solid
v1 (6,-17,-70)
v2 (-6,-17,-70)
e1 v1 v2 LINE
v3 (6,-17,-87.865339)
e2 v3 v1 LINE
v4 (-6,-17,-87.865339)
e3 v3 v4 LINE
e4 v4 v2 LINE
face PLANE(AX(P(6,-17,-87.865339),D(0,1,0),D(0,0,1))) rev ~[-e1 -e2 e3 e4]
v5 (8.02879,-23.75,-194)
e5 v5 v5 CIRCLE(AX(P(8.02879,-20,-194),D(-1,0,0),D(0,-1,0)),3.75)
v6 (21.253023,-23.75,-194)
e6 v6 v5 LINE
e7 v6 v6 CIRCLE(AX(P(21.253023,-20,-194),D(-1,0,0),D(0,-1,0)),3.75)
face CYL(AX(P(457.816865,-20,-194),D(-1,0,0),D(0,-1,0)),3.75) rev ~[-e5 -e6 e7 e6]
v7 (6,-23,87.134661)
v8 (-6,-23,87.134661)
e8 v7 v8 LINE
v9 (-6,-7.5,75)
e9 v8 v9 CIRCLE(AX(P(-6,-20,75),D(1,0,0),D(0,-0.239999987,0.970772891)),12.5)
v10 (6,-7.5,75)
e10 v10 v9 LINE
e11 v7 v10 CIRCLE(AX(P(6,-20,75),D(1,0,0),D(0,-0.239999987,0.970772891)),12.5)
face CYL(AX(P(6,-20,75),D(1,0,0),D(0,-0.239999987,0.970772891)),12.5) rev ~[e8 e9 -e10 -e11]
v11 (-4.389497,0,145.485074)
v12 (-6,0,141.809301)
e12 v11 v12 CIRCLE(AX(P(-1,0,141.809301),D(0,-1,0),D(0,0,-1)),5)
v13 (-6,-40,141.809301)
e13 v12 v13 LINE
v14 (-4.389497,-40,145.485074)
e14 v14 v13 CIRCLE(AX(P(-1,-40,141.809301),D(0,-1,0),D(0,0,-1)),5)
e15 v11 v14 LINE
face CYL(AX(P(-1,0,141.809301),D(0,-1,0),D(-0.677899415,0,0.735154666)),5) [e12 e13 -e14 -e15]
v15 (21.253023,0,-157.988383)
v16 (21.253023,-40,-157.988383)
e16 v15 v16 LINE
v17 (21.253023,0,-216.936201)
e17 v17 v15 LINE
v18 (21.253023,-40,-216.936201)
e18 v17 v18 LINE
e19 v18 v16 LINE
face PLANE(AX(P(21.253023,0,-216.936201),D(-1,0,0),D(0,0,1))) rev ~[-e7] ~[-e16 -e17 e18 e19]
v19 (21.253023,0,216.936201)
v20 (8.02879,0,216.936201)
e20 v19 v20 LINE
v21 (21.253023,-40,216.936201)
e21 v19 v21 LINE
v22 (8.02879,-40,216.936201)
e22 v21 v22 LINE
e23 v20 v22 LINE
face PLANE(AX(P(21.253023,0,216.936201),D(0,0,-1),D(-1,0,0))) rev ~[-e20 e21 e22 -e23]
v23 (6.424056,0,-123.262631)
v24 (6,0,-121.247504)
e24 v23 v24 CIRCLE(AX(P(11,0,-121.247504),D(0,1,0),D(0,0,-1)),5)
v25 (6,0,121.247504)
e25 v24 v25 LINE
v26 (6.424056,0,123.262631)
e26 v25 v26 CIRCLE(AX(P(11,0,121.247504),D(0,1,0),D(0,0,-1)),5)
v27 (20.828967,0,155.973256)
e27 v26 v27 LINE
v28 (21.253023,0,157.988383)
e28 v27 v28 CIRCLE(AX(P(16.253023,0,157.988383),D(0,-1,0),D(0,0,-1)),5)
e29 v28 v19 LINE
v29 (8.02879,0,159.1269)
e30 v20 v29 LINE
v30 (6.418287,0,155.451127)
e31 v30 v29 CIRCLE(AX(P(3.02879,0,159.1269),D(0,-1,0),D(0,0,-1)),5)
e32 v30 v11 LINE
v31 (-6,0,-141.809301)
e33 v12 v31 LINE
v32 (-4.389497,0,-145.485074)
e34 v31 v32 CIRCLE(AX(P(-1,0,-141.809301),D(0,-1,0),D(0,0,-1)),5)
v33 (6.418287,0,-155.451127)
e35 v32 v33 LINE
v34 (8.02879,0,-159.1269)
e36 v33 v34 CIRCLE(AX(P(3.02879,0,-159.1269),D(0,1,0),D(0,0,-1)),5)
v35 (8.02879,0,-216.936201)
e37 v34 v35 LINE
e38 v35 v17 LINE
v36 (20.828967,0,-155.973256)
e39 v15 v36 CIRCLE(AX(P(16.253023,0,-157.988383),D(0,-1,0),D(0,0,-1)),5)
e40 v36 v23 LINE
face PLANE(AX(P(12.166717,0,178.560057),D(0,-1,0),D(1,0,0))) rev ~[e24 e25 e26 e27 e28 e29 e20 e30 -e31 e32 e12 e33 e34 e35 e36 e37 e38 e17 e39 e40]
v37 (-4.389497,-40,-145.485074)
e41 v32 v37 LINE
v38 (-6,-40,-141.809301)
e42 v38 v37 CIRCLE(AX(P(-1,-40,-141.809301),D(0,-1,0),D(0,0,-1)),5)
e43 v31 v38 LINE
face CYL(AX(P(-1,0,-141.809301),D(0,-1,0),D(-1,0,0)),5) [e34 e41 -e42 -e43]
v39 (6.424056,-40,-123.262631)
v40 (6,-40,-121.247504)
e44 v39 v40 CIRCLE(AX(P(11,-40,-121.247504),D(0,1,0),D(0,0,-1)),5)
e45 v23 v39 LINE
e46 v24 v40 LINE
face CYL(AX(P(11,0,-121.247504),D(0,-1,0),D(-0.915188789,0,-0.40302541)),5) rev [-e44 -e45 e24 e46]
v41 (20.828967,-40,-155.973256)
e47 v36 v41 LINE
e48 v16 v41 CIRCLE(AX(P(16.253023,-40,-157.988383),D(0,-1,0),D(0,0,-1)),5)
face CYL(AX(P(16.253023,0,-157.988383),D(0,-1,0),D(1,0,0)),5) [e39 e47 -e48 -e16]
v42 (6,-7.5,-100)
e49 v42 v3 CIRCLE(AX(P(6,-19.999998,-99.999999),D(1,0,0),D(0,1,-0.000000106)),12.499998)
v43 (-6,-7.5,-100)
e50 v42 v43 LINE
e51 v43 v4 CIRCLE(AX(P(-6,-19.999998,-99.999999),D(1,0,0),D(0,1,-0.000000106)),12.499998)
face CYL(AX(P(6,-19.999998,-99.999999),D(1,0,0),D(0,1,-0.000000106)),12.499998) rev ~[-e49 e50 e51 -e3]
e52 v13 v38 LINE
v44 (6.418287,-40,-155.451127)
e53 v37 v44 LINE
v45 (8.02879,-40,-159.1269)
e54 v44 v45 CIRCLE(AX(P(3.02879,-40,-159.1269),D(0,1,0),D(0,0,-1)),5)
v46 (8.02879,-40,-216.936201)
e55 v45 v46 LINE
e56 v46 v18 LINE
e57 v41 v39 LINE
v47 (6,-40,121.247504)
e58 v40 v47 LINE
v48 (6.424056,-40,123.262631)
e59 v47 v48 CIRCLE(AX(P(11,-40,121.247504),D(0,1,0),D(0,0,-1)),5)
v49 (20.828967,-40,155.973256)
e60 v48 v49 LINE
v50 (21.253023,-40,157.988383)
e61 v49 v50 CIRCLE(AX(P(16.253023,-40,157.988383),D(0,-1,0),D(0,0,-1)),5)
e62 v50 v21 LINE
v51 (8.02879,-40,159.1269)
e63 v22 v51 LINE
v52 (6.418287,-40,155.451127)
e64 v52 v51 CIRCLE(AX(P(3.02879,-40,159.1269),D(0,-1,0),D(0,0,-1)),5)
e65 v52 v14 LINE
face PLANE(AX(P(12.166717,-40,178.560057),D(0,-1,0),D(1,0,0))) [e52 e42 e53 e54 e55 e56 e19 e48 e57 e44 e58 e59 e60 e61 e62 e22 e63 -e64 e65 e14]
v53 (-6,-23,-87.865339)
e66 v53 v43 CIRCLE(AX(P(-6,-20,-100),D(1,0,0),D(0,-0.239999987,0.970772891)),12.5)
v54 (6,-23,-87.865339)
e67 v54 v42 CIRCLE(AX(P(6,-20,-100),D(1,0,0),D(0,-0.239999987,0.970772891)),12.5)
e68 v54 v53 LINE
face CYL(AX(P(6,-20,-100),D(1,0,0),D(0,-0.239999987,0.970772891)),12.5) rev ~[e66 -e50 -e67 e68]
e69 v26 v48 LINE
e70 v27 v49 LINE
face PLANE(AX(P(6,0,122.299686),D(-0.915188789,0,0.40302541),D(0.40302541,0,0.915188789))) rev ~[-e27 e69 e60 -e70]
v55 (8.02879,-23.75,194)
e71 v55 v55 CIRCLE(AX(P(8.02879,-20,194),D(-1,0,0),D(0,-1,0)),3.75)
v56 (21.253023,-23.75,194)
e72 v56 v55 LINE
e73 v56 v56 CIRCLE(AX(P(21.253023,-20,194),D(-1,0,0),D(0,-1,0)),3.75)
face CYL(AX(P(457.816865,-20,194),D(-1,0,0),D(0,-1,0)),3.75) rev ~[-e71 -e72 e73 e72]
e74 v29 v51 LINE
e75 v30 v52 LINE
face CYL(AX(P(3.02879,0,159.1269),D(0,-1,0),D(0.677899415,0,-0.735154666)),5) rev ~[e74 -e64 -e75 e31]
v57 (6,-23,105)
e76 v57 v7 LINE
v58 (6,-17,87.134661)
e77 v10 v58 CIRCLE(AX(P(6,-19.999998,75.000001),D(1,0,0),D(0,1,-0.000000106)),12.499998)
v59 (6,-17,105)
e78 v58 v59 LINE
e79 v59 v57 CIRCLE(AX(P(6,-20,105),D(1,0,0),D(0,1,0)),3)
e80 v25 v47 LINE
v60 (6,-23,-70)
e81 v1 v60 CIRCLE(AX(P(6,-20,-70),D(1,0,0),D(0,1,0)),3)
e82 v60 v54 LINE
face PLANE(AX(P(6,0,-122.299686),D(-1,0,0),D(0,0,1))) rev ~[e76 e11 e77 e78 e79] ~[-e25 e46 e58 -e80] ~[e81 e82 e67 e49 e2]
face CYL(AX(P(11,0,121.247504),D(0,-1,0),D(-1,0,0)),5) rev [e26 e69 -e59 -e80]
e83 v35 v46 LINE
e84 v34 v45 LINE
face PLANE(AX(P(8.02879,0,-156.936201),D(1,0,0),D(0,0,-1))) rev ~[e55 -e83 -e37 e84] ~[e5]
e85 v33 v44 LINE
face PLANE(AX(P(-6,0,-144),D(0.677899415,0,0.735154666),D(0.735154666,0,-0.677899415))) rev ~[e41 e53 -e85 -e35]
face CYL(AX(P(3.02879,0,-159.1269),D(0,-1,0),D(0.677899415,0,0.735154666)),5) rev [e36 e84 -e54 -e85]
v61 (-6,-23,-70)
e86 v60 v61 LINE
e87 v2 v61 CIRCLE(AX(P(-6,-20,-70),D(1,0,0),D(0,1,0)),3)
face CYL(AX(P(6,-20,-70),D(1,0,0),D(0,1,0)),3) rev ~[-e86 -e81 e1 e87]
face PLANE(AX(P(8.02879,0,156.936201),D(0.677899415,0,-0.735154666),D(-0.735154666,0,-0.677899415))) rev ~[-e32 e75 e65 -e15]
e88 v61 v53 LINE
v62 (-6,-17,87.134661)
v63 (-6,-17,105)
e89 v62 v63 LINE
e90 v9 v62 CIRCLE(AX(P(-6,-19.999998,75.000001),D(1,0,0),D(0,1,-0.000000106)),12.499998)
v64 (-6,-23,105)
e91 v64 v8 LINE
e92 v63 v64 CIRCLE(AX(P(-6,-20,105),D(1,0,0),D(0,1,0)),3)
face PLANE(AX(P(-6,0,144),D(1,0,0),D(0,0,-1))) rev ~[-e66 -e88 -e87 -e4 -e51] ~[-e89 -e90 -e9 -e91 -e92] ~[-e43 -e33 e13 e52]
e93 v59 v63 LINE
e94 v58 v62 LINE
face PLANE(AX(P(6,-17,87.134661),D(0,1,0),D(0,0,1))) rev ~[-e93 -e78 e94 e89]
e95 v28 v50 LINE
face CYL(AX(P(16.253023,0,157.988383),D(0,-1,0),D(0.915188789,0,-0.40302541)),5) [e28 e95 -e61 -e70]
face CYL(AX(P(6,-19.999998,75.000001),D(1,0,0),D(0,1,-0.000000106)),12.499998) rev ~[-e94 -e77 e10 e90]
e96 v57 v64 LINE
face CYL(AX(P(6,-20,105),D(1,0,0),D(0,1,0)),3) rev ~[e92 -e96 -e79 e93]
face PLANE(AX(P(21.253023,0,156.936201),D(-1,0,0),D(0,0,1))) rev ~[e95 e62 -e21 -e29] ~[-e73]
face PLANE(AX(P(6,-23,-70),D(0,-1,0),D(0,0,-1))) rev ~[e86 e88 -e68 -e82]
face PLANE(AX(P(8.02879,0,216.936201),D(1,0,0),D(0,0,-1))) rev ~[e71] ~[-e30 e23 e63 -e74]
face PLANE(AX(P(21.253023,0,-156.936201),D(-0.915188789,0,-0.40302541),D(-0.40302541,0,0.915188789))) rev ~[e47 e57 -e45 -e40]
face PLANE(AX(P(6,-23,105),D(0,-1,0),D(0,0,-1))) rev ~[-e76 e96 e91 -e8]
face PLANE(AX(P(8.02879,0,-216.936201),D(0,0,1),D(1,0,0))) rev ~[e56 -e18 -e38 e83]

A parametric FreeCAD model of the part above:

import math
import FreeCAD as App
import Part
import Sketcher
Q = App.Units.Quantity


def edges_at(feature, points):
    """Names of the edges that pass closest to the given points."""
    edges = feature.Shape.Edges
    near = lambda p: min(range(len(edges)), key=lambda i: edges[i].distToShape(Part.Vertex(*p))[0])
    return sorted({f"Edge{near(p) + 1}" for p in points})

doc = App.newDocument("Part")
body = doc.addObject("PartDesign::Body", "Body")

# Sketch on XZ plane
sketch1 = body.newObject("Sketcher::SketchObject", "Sketch")
sketch1.AttachmentSupport = (doc.getObject("XZ_Plane"), [""])
sketch1.MapMode = "FlatFace"
sketch1.addGeometry([
    Part.LineSegment(App.Vector(8.02879, 156.936201, 0), App.Vector(-6, 144, 0)),  # 0
    Part.LineSegment(App.Vector(-6, 144, 0), App.Vector(-6, -144, 0)),  # 1
    Part.LineSegment(App.Vector(-6, -144, 0), App.Vector(8.02879, -156.936201, 0)),  # 2
    Part.LineSegment(App.Vector(8.02879, -156.936201, 0), App.Vector(8.02879, -216.936201, 0)),  # 3
    Part.LineSegment(App.Vector(8.02879, -216.936201, 0), App.Vector(21.253023, -216.936201, 0)),  # 4
    Part.LineSegment(App.Vector(21.253023, -216.936201, 0), App.Vector(21.253023, -156.936201, 0)),  # 5
    Part.LineSegment(App.Vector(21.253023, -156.936201, 0), App.Vector(6, -122.299686, 0)),  # 6
    Part.LineSegment(App.Vector(6, -122.299686, 0), App.Vector(6, 122.299686, 0)),  # 7
    Part.LineSegment(App.Vector(6, 122.299686, 0), App.Vector(21.253023, 156.936201, 0)),  # 8
    Part.LineSegment(App.Vector(21.253023, 156.936201, 0), App.Vector(21.253023, 216.936201, 0)),  # 9
    Part.LineSegment(App.Vector(21.253023, 216.936201, 0), App.Vector(8.02879, 216.936201, 0)),  # 10
    Part.LineSegment(App.Vector(8.02879, 216.936201, 0), App.Vector(8.02879, 156.936201, 0)),  # 11
], False)
sketch1.addConstraint([
    Sketcher.Constraint("Coincident", 0, 2, 1, 1),
    Sketcher.Constraint("Coincident", 1, 2, 2, 1),
    Sketcher.Constraint("Coincident", 2, 2, 3, 1),
    Sketcher.Constraint("Coincident", 3, 2, 4, 1),
    Sketcher.Constraint("Coincident", 4, 2, 5, 1),
    Sketcher.Constraint("Coincident", 5, 2, 6, 1),
    Sketcher.Constraint("Coincident", 6, 2, 7, 1),
    Sketcher.Constraint("Coincident", 7, 2, 8, 1),
    Sketcher.Constraint("Coincident", 8, 2, 9, 1),
    Sketcher.Constraint("Coincident", 9, 2, 10, 1),
    Sketcher.Constraint("Coincident", 10, 2, 11, 1),
    Sketcher.Constraint("Coincident", 11, 2, 0, 1),
    Sketcher.Constraint("Vertical", 1),
    Sketcher.Constraint("Vertical", 3),
    Sketcher.Constraint("Horizontal", 4),
    Sketcher.Constraint("Vertical", 5),
    Sketcher.Constraint("Vertical", 7),
    Sketcher.Constraint("Vertical", 9),
    Sketcher.Constraint("Horizontal", 10),
    Sketcher.Constraint("Vertical", 11),
    Sketcher.Constraint("Symmetric", 5, 2, 8, 2, -1),
    Sketcher.Constraint("Symmetric", 3, 2, 10, 2, -1),
    Sketcher.Constraint("Horizontal", 2, 2, 5, 2),
    Sketcher.Constraint("Horizontal", 8, 2, 11, 2),
    Sketcher.Constraint("Equal", 0, 2),
    Sketcher.Constraint("Equal", 6, 8),
    Sketcher.Constraint("DistanceY", 1, 2, 1, 1, Q("288 mm")),
    Sketcher.Constraint("DistanceY", 3, 2, 3, 1, Q("60 mm")),
    Sketcher.Constraint("DistanceX", 0, 2, -1, 1, Q("6 mm")),
    Sketcher.Constraint("DistanceX", -1, 1, 6, 2, Q("6 mm")),
    Sketcher.Constraint("DistanceY", 7, 1, 7, 2, Q("244.599372 mm")),
    Sketcher.Constraint("DistanceY", 2, 2, -1, 1, Q("156.936201 mm")),
    Sketcher.Constraint("DistanceX", 4, 1, 4, 2, Q("13.224233 mm")),
    Sketcher.Constraint("DistanceX", -1, 1, 2, 2, Q("8.02879 mm")),
])
pad1 = body.newObject("PartDesign::Pad", "Pad")
pad1.Profile = sketch1
pad1.Length = 40
doc.recompute()

fillet = body.newObject("PartDesign::Fillet", "Fillet")
fillet.Base = (pad1, edges_at(pad1, [
    (6, -20, -122.3),
    (21.253, -20, -156.936),
    (8.029, -20, -156.936),
    (-6, -20, -144),
    (-6, -20, 144),
    (6, -20, 122.3),
    (21.253, -20, 156.936),
]))
fillet.Radius = 5
doc.recompute()

fillet2 = body.newObject("PartDesign::Fillet", "Fillet001")
fillet2.Base = (fillet, edges_at(fillet, [(8.029, -20, 156.936)]))
fillet2.Radius = 5

# Sketch on YZ plane
sketch2 = body.newObject("Sketcher::SketchObject", "Sketch001")
sketch2.AttachmentSupport = (doc.getObject("YZ_Plane"), [""])
sketch2.MapMode = "FlatFace"
sketch2.AttachmentOffset = App.Placement(App.Vector(0, 0, 21.253023), App.Rotation())
sketch2.addGeometry([
    Part.Circle(App.Vector(-20, 194, 0), App.Vector(0, 0, 1), 3.75),
    Part.Circle(App.Vector(-20, -194, 0), App.Vector(0, 0, 1), 3.75),
], False)
sketch2.addConstraint([
    Sketcher.Constraint("Equal", 0, 1),
    Sketcher.Constraint("Symmetric", 0, 3, 1, 3, -1),
    Sketcher.Constraint("Diameter", 0, Q("7.5 mm")),
    Sketcher.Constraint("DistanceX", 0, 3, -1, 1, Q("20 mm")),
    Sketcher.Constraint("DistanceY", -1, 1, 0, 3, Q("194 mm")),
])
doc.recompute()
hole = body.newObject("PartDesign::Hole", "Hole")
hole.Profile = sketch2
hole.ThreadType = "None"
hole.Diameter = 7.5
hole.DepthType = "ThroughAll"

# Sketch on YZ plane
sketch3 = body.newObject("Sketcher::SketchObject", "Sketch002")
sketch3.AttachmentSupport = (doc.getObject("YZ_Plane"), [""])
sketch3.MapMode = "FlatFace"
sketch3.AttachmentOffset = App.Placement(App.Vector(0, 0, 6), App.Rotation())
sketch3.addGeometry([
    Part.ArcOfCircle(Part.Circle(App.Vector(-20, -100, 0), App.Vector(0, 0, 1), 12.5), math.radians(103.88654), math.radians(360.000001)),  # 0
    Part.ArcOfCircle(Part.Circle(App.Vector(-19.999998, -99.999999, 0), App.Vector(0, 0, 1), 12.499998), math.radians(-0.000006), math.radians(76.113466)),  # 1
    Part.LineSegment(App.Vector(-17, -87.865339, 0), App.Vector(-17, -70, 0)),  # 2
    Part.ArcOfCircle(Part.Circle(App.Vector(-20, -70, 0), App.Vector(0, 0, 1), 3), math.radians(0), math.radians(180)),  # 3
    Part.LineSegment(App.Vector(-23, -70, 0), App.Vector(-23, -87.865339, 0)),  # 4
    Part.ArcOfCircle(Part.Circle(App.Vector(-20, 75, 0), App.Vector(0, 0, 1), 12.5), math.radians(103.88654), math.radians(360.000001)),  # 5
    Part.ArcOfCircle(Part.Circle(App.Vector(-19.999998, 75.000001, 0), App.Vector(0, 0, 1), 12.499998), math.radians(-0.000006), math.radians(76.113466)),  # 6
    Part.LineSegment(App.Vector(-17, 87.134661, 0), App.Vector(-17, 105, 0)),  # 7
    Part.ArcOfCircle(Part.Circle(App.Vector(-20, 105, 0), App.Vector(0, 0, 1), 3), math.radians(0), math.radians(180)),  # 8
    Part.LineSegment(App.Vector(-23, 105, 0), App.Vector(-23, 87.134661, 0)),  # 9
], False)
sketch3.addConstraint([
    Sketcher.Constraint("Tangent", 0, 2, 1, 1),
    Sketcher.Constraint("Coincident", 1, 2, 2, 1),
    Sketcher.Constraint("Tangent", 2, 2, 3, 1),
    Sketcher.Constraint("Tangent", 3, 2, 4, 1),
    Sketcher.Constraint("Coincident", 4, 2, 0, 1),
    Sketcher.Constraint("Tangent", 5, 2, 6, 1),
    Sketcher.Constraint("Coincident", 6, 2, 7, 1),
    Sketcher.Constraint("Tangent", 7, 2, 8, 1),
    Sketcher.Constraint("Tangent", 8, 2, 9, 1),
    Sketcher.Constraint("Coincident", 9, 2, 5, 1),
    Sketcher.Constraint("Vertical", 2),
    Sketcher.Constraint("Vertical", 4),
    Sketcher.Constraint("Vertical", 7),
    Sketcher.Constraint("Vertical", 9),
    Sketcher.Constraint("Equal", 0, 1),
    Sketcher.Constraint("Equal", 1, 5),
    Sketcher.Constraint("Equal", 5, 6),
    Sketcher.Constraint("Equal", 3, 8),
    Sketcher.Constraint("Horizontal", 1, 3, 0, 2),
    Sketcher.Constraint("Horizontal", 1, 2, 4, 2),
    Sketcher.Constraint("Horizontal", 6, 3, 5, 2),
    Sketcher.Constraint("Horizontal", 6, 2, 9, 2),
    Sketcher.Constraint("Vertical", 3, 3, 5, 3),
    Sketcher.Constraint("Equal", 4, 7),
    Sketcher.Constraint("Radius", 3, Q("3 mm")),
    Sketcher.Constraint("Radius", 0, Q("12.5 mm")),
    Sketcher.Constraint("DistanceX", 0, 3, -1, 1, Q("20 mm")),
    Sketcher.Constraint("DistanceY", 0, 3, -1, 1, Q("100 mm")),
    Sketcher.Constraint("DistanceY", 3, 3, -1, 1, Q("70 mm")),
    Sketcher.Constraint("DistanceY", -1, 1, 5, 3, Q("75 mm")),
])
pocket1 = body.newObject("PartDesign::Pocket", "Pocket")
pocket1.Profile = sketch3
pocket1.Length = 12

doc.recompute()
